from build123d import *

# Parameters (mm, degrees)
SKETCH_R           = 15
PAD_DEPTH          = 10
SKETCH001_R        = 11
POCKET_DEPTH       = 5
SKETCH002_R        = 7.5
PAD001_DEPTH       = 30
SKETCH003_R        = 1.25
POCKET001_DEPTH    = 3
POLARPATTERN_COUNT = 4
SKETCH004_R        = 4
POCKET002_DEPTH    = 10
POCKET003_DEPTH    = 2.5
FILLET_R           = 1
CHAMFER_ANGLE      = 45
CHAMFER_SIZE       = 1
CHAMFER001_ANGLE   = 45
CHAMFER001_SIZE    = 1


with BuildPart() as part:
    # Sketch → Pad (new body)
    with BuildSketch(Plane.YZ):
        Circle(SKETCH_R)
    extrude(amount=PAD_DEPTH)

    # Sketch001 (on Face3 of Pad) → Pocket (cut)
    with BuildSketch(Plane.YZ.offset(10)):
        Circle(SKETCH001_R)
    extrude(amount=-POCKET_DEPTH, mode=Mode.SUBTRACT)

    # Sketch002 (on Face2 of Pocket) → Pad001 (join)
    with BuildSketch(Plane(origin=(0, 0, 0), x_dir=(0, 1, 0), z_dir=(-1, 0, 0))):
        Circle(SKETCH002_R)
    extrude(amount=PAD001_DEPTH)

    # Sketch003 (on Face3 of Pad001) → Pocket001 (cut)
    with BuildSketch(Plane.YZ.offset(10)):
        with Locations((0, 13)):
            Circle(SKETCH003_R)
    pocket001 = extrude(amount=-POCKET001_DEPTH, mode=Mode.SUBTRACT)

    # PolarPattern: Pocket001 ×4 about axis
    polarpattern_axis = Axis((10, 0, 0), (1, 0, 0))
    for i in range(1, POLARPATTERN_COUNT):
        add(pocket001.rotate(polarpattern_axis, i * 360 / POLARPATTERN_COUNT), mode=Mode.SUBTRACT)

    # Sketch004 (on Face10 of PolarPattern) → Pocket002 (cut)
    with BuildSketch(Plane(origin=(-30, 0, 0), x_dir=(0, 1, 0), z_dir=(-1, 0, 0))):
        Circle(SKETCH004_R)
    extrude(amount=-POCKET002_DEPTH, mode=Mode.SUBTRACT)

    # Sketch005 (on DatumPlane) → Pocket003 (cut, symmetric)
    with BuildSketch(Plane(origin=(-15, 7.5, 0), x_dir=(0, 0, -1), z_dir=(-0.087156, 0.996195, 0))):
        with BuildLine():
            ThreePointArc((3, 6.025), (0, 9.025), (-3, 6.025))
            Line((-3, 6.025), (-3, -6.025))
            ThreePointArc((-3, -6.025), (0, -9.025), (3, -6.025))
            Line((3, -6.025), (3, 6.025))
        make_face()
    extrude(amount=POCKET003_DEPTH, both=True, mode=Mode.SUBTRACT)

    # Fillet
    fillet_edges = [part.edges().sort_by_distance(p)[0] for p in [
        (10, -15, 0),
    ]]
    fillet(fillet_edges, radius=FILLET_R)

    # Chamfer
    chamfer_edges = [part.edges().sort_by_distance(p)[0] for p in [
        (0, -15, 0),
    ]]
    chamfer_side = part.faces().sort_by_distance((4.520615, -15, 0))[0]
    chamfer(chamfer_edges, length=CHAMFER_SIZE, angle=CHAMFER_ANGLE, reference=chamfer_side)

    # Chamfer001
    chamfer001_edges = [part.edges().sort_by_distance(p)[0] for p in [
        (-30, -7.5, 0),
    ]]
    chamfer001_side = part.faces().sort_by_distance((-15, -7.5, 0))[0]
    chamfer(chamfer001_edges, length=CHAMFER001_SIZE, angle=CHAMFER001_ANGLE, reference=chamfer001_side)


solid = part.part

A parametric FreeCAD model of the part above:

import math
import FreeCAD as App
import Part
import Sketcher
Q = App.Units.Quantity


def edges_at(feature, points):
    """Names of the edges that pass closest to the given points."""
    edges = feature.Shape.Edges
    near = lambda p: min(range(len(edges)), key=lambda i: edges[i].distToShape(Part.Vertex(*p))[0])
    return sorted({f"Edge{near(p) + 1}" for p in points})

doc = App.newDocument("Part")
body = doc.addObject("PartDesign::Body", "Body")

# Sketch on YZ plane
sketch1 = doc.addObject("Sketcher::SketchObject", "Sketch")
body.addObject(sketch1)
sketch1.AttachmentSupport = (doc.YZ_Plane, [""])
sketch1.MapMode = "FlatFace"
sketch1.addGeometry(Part.Circle(App.Vector(0, 0, 0), App.Vector(0, 0, 1), 15), False)
sketch1.addConstraint(Sketcher.Constraint("Coincident", 0, 3, -1, 1))
sketch1.addConstraint(Sketcher.Constraint("Diameter", 0, Q("30 mm")))
pad1 = doc.addObject("PartDesign::Pad", "Pad")
body.addObject(pad1)
pad1.Profile = sketch1
pad1.Length = 10

# Sketch on YZ plane
sketch2 = doc.addObject("Sketcher::SketchObject", "Sketch001")
body.addObject(sketch2)
sketch2.AttachmentSupport = (doc.YZ_Plane, [""])
sketch2.MapMode = "FlatFace"
sketch2.AttachmentOffset = App.Placement(App.Vector(0, 0, 10), App.Rotation())
sketch2.addGeometry(Part.Circle(App.Vector(0, 0, 0), App.Vector(0, 0, 1), 11), False)
sketch2.addConstraint(Sketcher.Constraint("Coincident", 0, 3, -1, 1))
sketch2.addConstraint(Sketcher.Constraint("Diameter", 0, Q("22 mm")))
pocket1 = doc.addObject("PartDesign::Pocket", "Pocket")
body.addObject(pocket1)
pocket1.Profile = sketch2
pocket1.Length = 5

# Sketch on YZ plane
sketch3 = doc.addObject("Sketcher::SketchObject", "Sketch002")
body.addObject(sketch3)
sketch3.AttachmentSupport = (doc.YZ_Plane, [""])
sketch3.MapMode = "FlatFace"
sketch3.addGeometry(Part.Circle(App.Vector(0, 0, 0), App.Vector(0, 0, 1), 7.5), False)
sketch3.addConstraint(Sketcher.Constraint("Coincident", 0, 3, -1, 1))
sketch3.addConstraint(Sketcher.Constraint("Diameter", 0, Q("15 mm")))
pad2 = doc.addObject("PartDesign::Pad", "Pad001")
body.addObject(pad2)
pad2.Profile = sketch3
pad2.Length = 30
pad2.Reversed = True

# Sketch on YZ plane
sketch4 = doc.addObject("Sketcher::SketchObject", "Sketch003")
body.addObject(sketch4)
sketch4.AttachmentSupport = (doc.YZ_Plane, [""])
sketch4.MapMode = "FlatFace"
sketch4.AttachmentOffset = App.Placement(App.Vector(0, 0, 10), App.Rotation())
sketch4.addGeometry(Part.Circle(App.Vector(0, 13, 0), App.Vector(0, 0, 1), 1.25), False)
sketch4.addConstraint(Sketcher.Constraint("PointOnObject", 0, 3, -2))
sketch4.addConstraint(Sketcher.Constraint("Diameter", 0, Q("2.5 mm")))
sketch4.addConstraint(Sketcher.Constraint("DistanceY", -1, 1, 0, 3, Q("13 mm")))
pocket2 = doc.addObject("PartDesign::Pocket", "Pocket001")
body.addObject(pocket2)
pocket2.Profile = sketch4
pocket2.Length = 3
doc.recompute()

polarpattern = doc.addObject("PartDesign::PolarPattern", "PolarPattern")
body.addObject(polarpattern)
polarpattern.Originals = [pocket2]
polarpattern.Axis = (doc.X_Axis, [""])
polarpattern.Angle = 360
polarpattern.Occurrences = 4
body.Tip = polarpattern

# Sketch on YZ plane
sketch5 = doc.addObject("Sketcher::SketchObject", "Sketch004")
body.addObject(sketch5)
sketch5.AttachmentSupport = (doc.YZ_Plane, [""])
sketch5.MapMode = "FlatFace"
sketch5.AttachmentOffset = App.Placement(App.Vector(0, 0, -30), App.Rotation())
sketch5.addGeometry(Part.Circle(App.Vector(0, 0, 0), App.Vector(0, 0, 1), 4), False)
sketch5.addConstraint(Sketcher.Constraint("Coincident", 0, 3, -1, 1))
sketch5.addConstraint(Sketcher.Constraint("Diameter", 0, Q("8 mm")))
pocket3 = doc.addObject("PartDesign::Pocket", "Pocket002")
body.addObject(pocket3)
pocket3.Profile = sketch5
pocket3.Length = 10
pocket3.Reversed = True

# Sketch on an angled plane
sketch6 = doc.addObject("Sketcher::SketchObject", "Sketch005")
body.addObject(sketch6)
sketch6.Placement = App.Placement(App.Vector(-15, 7.5, 0), App.Rotation(App.Vector(0, 0, -1), App.Vector(-0.996194678, -0.087155972, 0), App.Vector(-0.087155972, 0.996194678, 0), "ZXY"))
sketch6.addGeometry(Part.ArcOfCircle(Part.Circle(App.Vector(0, 6.025, 0), App.Vector(0, 0, 1), 3), math.radians(0), math.radians(180)), False)
sketch6.addGeometry(Part.LineSegment(App.Vector(-3, 6.025, 0), App.Vector(-3, -6.025, 0)), False)
sketch6.addGeometry(Part.ArcOfCircle(Part.Circle(App.Vector(0, -6.025, 0), App.Vector(0, 0, 1), 3), math.radians(180), math.radians(360)), False)
sketch6.addGeometry(Part.LineSegment(App.Vector(3, -6.025, 0), App.Vector(3, 6.025, 0)), False)
sketch6.addConstraint(Sketcher.Constraint("Tangent", 0, 2, 1, 1))
sketch6.addConstraint(Sketcher.Constraint("Tangent", 1, 2, 2, 1))
sketch6.addConstraint(Sketcher.Constraint("Tangent", 2, 2, 3, 1))
sketch6.addConstraint(Sketcher.Constraint("Tangent", 3, 2, 0, 1))
sketch6.addConstraint(Sketcher.Constraint("Vertical", 1))
sketch6.addConstraint(Sketcher.Constraint("Vertical", 3))
sketch6.addConstraint(Sketcher.Constraint("Symmetric", 0, 3, 2, 3, -1, 1))
sketch6.addConstraint(Sketcher.Constraint("Radius", 0, Q("3 mm")))
sketch6.addConstraint(Sketcher.Constraint("DistanceY", 1, 2, 1, 1, Q("12.05 mm")))
pocket4 = doc.addObject("PartDesign::Pocket", "Pocket003")
body.addObject(pocket4)
pocket4.Profile = sketch6
pocket4.Length = 5
pocket4.Midplane = True
doc.recompute()

fillet = doc.addObject("PartDesign::Fillet", "Fillet")
body.addObject(fillet)
fillet.Base = (pocket4, edges_at(pocket4, [(10, -15, 0)]))
fillet.Radius = 1
doc.recompute()

chamfer = doc.addObject("PartDesign::Chamfer", "Chamfer")
body.addObject(chamfer)
chamfer.Base = (fillet, edges_at(fillet, [(0, -15, 0)]))
chamfer.Size = 1
doc.recompute()

chamfer2 = doc.addObject("PartDesign::Chamfer", "Chamfer001")
body.addObject(chamfer2)
chamfer2.Base = (chamfer, edges_at(chamfer, [(-30, -7.5, 0)]))
chamfer2.Size = 1

doc.recompute()
